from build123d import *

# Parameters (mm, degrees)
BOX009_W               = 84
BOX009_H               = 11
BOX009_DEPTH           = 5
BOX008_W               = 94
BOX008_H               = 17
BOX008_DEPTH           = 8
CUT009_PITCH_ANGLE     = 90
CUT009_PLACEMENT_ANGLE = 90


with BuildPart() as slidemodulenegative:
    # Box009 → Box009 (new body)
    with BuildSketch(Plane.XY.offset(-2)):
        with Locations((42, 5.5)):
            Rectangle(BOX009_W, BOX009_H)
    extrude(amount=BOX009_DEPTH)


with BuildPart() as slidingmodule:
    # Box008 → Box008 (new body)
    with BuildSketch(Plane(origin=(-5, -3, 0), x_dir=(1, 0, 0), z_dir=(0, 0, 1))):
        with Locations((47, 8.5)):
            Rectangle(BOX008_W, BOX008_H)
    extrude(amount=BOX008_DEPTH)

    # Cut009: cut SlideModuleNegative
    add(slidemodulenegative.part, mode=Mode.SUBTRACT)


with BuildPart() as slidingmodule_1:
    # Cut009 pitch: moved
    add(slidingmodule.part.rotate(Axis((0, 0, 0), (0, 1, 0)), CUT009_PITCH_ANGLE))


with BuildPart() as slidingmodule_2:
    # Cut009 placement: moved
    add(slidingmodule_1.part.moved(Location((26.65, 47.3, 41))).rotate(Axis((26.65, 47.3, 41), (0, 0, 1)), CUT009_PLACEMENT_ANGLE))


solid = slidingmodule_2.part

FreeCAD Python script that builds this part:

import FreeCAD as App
import Part
import Sketcher
Q = App.Units.Quantity


def add_polygon(sketch, points):
    """Adds a closed chain of lines whose ends are joined by coincident constraints."""
    first, n = sketch.GeometryCount, len(points)
    for a, b in zip(points, points[1:] + points[:1]):
        sketch.addGeometry(Part.LineSegment(App.Vector(*a, 0), App.Vector(*b, 0)), False)
    for i in range(n):
        sketch.addConstraint(Sketcher.Constraint("Coincident", first + i, 2, first + (i + 1) % n, 1))

doc = App.newDocument("Part")
body = doc.addObject("PartDesign::Body", "Body")

# Sketch on XY plane
sketch1 = body.newObject("Sketcher::SketchObject", "Sketch")
sketch1.AttachmentSupport = (doc.getObject("XY_Plane"), [""])
sketch1.MapMode = "FlatFace"
sketch1.AttachmentOffset = App.Placement(App.Vector(0, 0, -2), App.Rotation())
add_polygon(sketch1, [(0, 11), (0, 0), (84, 0), (84, 11)])  # lines 0-3
sketch1.addConstraint(Sketcher.Constraint("Vertical", 0))
sketch1.addConstraint(Sketcher.Constraint("Horizontal", 1))
sketch1.addConstraint(Sketcher.Constraint("Vertical", 2))
sketch1.addConstraint(Sketcher.Constraint("Horizontal", 3))
sketch1.addConstraint(Sketcher.Constraint("Coincident", 0, 2, -1, 1))
sketch1.addConstraint(Sketcher.Constraint("DistanceX", 1, 1, 1, 2, Q("84 mm")))
sketch1.addConstraint(Sketcher.Constraint("DistanceY", 0, 2, 0, 1, Q("11 mm")))
pad1 = body.newObject("PartDesign::Pad", "Pad")
pad1.Profile = sketch1
pad1.Length = 5
body2 = doc.addObject("PartDesign::Body", "Body001")

# Sketch on XY plane
sketch2 = body2.newObject("Sketcher::SketchObject", "Sketch001")
sketch2.AttachmentSupport = (doc.getObject("XY_Plane001"), [""])
sketch2.MapMode = "FlatFace"
add_polygon(sketch2, [(-5, 14), (-5, -3), (89, -3), (89, 14)])  # lines 0-3
sketch2.addConstraint(Sketcher.Constraint("Vertical", 0))
sketch2.addConstraint(Sketcher.Constraint("Horizontal", 1))
sketch2.addConstraint(Sketcher.Constraint("Vertical", 2))
sketch2.addConstraint(Sketcher.Constraint("Horizontal", 3))
sketch2.addConstraint(Sketcher.Constraint("DistanceX", 1, 1, 1, 2, Q("94 mm")))
sketch2.addConstraint(Sketcher.Constraint("DistanceY", 0, 2, 0, 1, Q("17 mm")))
sketch2.addConstraint(Sketcher.Constraint("DistanceX", 0, 2, -1, 1, Q("5 mm")))
sketch2.addConstraint(Sketcher.Constraint("DistanceY", 0, 2, -1, 1, Q("3 mm")))
pad2 = body2.newObject("PartDesign::Pad", "Pad001")
pad2.Profile = sketch2
pad2.Length = 8
doc.recompute()

boolean = body2.newObject("PartDesign::Boolean", "Boolean")
boolean.Type = "Cut"
boolean.addObjects([body])
body3 = doc.addObject("PartDesign::Body", "Body002")
doc.recompute()

body2.Placement = App.Placement(App.Vector(0, 0, 0), App.Rotation(App.Vector(0, 1, 0), 90))
boolean2 = body3.newObject("PartDesign::Boolean", "Boolean001")
boolean2.Type = "Fuse"
boolean2.addObjects([body2])
body4 = doc.addObject("PartDesign::Body", "Body003")
doc.recompute()

body3.Placement = App.Placement(App.Vector(26.65, 47.3, 41), App.Rotation(App.Vector(0, 0, 1), 90))
boolean3 = body4.newObject("PartDesign::Boolean", "Boolean002")
boolean3.Type = "Fuse"
boolean3.addObjects([body3])

doc.recompute()
